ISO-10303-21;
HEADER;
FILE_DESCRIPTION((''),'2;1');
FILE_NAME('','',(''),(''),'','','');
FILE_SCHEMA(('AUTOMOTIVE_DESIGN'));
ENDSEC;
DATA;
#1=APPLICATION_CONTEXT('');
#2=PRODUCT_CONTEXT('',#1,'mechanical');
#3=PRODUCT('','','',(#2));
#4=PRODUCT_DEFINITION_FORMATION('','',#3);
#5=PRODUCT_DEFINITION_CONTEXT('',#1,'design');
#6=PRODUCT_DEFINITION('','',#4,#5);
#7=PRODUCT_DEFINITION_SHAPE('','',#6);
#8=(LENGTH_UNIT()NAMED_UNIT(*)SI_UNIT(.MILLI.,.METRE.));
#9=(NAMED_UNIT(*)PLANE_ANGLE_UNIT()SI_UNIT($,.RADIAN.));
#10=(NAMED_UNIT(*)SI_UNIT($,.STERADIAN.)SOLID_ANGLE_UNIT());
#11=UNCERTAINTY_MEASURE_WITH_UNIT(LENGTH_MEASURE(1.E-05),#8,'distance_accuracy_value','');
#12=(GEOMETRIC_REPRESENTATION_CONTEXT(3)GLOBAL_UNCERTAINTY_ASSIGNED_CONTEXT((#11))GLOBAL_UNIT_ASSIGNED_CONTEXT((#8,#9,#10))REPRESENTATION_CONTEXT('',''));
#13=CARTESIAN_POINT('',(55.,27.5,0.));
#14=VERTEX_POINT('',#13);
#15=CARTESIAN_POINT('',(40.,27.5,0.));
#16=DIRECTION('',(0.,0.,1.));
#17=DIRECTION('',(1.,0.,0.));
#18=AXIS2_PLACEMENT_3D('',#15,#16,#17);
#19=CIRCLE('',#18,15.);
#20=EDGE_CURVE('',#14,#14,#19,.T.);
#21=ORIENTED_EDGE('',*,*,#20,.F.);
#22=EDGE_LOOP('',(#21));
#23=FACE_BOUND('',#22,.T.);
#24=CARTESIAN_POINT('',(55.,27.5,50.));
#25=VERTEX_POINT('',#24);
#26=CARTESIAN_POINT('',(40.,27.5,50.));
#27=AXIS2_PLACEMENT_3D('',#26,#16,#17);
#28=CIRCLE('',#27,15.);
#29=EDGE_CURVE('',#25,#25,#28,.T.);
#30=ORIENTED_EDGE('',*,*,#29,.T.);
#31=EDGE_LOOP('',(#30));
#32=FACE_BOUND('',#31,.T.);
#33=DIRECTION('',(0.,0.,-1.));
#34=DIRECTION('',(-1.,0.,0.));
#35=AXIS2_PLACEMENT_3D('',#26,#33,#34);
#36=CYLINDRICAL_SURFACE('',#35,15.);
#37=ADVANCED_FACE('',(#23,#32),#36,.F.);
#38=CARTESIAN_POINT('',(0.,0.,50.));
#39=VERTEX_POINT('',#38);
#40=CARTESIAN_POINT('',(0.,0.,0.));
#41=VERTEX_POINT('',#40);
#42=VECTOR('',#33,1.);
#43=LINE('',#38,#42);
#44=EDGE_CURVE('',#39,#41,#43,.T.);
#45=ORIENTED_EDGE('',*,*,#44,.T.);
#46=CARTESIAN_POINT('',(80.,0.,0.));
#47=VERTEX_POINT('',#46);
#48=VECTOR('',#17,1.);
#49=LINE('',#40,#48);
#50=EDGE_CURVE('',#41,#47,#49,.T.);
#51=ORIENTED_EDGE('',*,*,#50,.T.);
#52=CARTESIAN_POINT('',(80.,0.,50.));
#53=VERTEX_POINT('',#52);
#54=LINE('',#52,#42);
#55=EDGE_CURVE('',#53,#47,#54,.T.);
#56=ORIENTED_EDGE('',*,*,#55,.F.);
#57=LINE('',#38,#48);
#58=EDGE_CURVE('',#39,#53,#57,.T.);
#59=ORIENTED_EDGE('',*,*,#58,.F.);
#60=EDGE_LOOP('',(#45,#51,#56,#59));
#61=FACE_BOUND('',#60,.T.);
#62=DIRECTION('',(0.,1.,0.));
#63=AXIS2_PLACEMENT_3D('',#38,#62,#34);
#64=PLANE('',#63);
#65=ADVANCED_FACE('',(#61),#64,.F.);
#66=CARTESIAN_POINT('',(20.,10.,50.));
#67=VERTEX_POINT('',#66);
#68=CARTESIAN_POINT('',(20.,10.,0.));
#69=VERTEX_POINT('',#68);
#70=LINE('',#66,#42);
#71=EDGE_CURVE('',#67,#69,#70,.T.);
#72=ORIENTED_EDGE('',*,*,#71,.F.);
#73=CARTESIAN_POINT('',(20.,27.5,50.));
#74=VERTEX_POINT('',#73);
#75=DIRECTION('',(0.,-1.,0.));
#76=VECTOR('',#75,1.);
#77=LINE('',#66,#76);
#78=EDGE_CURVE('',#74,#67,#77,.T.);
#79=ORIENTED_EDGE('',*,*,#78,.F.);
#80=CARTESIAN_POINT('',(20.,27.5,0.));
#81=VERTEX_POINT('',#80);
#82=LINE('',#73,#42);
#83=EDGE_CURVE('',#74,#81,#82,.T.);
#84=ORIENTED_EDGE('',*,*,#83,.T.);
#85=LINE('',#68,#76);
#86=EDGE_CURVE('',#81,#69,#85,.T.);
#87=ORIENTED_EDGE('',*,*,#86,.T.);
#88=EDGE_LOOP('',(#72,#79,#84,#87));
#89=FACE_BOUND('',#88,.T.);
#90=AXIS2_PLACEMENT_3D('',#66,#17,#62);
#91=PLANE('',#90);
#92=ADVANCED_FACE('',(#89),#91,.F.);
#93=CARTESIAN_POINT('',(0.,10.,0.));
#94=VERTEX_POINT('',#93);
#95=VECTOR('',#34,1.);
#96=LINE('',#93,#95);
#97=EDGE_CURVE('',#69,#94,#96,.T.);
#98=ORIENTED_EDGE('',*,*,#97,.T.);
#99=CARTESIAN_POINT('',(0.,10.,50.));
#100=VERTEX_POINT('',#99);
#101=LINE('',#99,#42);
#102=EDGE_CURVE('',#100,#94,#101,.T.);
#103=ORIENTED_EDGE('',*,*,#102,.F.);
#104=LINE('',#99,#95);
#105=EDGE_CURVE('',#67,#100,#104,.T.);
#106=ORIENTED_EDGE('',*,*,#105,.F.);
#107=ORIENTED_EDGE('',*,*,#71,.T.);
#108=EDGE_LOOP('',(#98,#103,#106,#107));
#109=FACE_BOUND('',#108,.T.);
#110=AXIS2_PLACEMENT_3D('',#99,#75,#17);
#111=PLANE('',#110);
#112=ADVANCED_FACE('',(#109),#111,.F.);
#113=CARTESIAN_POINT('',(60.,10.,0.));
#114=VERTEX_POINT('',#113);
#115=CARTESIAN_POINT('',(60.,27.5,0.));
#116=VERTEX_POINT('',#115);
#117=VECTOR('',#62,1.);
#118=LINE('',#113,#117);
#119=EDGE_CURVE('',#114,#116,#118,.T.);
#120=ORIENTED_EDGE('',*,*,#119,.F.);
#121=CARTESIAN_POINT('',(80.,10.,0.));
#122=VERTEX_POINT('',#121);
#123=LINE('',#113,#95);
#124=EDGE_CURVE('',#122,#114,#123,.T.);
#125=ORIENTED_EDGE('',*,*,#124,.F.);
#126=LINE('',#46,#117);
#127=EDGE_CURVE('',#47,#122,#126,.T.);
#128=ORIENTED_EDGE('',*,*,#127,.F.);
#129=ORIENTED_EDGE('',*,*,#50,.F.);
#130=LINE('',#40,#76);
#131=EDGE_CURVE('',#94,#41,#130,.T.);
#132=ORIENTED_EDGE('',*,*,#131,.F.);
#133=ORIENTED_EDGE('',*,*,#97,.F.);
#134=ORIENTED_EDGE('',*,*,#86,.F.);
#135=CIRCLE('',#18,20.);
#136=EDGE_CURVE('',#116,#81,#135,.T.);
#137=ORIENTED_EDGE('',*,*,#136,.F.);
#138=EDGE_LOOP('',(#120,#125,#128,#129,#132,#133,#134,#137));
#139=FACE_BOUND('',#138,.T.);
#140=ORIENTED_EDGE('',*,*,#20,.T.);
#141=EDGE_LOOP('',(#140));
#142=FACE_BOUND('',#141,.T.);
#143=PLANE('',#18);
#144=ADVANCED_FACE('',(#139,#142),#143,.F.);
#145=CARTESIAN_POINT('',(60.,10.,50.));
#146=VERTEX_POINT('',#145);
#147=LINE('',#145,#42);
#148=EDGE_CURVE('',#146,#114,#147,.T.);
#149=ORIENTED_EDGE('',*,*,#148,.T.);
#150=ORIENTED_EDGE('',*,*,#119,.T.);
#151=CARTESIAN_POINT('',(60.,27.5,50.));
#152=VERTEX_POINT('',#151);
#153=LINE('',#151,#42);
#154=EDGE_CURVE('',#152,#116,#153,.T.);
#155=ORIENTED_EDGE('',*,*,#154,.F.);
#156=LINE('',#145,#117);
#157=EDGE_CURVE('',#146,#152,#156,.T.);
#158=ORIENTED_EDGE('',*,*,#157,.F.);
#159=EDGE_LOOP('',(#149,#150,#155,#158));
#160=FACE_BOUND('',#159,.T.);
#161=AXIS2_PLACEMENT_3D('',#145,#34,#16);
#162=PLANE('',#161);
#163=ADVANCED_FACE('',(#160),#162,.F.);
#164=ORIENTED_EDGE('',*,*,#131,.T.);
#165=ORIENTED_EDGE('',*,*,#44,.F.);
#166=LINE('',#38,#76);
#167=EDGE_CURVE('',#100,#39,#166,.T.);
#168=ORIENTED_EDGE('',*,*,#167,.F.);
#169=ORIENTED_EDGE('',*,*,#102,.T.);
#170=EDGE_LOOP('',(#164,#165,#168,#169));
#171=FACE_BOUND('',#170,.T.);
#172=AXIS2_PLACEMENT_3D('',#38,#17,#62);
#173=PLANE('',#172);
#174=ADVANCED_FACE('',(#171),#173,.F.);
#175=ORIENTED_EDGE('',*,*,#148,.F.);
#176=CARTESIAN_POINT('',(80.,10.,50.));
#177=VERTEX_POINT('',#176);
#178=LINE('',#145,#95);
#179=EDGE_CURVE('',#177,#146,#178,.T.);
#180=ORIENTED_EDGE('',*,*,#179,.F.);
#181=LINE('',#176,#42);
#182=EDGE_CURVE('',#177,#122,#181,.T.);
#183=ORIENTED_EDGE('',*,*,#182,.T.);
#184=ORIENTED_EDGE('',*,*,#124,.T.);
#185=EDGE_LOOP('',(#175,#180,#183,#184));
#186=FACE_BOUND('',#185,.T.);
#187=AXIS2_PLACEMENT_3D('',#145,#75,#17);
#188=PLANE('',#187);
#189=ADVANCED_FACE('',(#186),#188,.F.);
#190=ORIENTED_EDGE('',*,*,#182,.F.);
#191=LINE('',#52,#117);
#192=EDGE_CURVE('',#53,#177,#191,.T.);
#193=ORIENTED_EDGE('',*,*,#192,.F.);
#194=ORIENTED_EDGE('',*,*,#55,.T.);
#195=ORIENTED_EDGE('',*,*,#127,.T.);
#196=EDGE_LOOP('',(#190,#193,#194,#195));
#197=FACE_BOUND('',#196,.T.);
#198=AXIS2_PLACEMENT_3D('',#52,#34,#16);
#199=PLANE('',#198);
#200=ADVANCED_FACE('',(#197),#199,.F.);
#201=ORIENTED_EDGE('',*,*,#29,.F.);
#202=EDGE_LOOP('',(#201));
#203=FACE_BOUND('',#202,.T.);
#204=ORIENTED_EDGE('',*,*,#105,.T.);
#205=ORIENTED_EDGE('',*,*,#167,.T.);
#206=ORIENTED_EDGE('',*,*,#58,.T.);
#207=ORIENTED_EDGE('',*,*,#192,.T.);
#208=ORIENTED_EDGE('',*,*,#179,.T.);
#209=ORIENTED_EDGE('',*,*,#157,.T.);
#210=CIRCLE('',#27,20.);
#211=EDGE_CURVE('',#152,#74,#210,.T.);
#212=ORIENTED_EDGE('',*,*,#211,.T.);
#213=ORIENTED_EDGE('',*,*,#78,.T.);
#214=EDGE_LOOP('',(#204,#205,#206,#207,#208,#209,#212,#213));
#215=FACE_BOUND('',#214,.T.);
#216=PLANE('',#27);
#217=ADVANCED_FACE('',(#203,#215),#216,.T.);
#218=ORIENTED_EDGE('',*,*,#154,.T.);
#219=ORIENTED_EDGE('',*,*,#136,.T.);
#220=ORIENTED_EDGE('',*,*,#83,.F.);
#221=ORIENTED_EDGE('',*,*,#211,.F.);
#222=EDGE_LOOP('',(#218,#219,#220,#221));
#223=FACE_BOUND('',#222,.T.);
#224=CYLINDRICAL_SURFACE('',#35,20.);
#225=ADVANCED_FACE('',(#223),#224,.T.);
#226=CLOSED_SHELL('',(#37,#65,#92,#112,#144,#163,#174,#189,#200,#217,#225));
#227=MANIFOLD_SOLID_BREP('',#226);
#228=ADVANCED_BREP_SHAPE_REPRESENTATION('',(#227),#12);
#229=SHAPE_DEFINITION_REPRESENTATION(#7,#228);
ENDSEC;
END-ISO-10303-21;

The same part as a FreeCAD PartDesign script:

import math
import FreeCAD as App
import Part
import Sketcher

V = App.Vector

doc = App.newDocument("Part")
body = doc.addObject("PartDesign::Body", "Body")

# Sketch on XY plane
sketch1 = body.newObject("Sketcher::SketchObject", "Sketch")
sketch1.AttachmentSupport = (doc.getObject("XY_Plane"), [""])
sketch1.MapMode = "FlatFace"
sketch1.addGeometry([
    Part.LineSegment(V(0, 0, 0), V(80, 0, 0)),  # 0
    Part.LineSegment(V(80, 0, 0), V(80, 10, 0)),  # 1
    Part.LineSegment(V(80, 10, 0), V(60, 10, 0)),  # 2
    Part.LineSegment(V(60, 10, 0), V(60, 28, 0)),  # 3
    Part.ArcOfCircle(Part.Circle(V(40, 28, 0), V(0, 0, 1), 20), math.radians(0), math.radians(180)),  # 4
    Part.LineSegment(V(20, 28, 0), V(20, 10, 0)),  # 5
    Part.LineSegment(V(20, 10, 0), V(0, 10, 0)),  # 6
    Part.LineSegment(V(0, 10, 0), V(0, 0, 0)),  # 7
    Part.Circle(V(40, 28, 0), V(0, 0, 1), 15),  # 8
], False)
sketch1.addConstraint([
    Sketcher.Constraint("Coincident", 0, 2, 1, 1),
    Sketcher.Constraint("Coincident", 1, 2, 2, 1),
    Sketcher.Constraint("Coincident", 2, 2, 3, 1),
    Sketcher.Constraint("Tangent", 3, 2, 4, 1),
    Sketcher.Constraint("Tangent", 4, 2, 5, 1),
    Sketcher.Constraint("Coincident", 5, 2, 6, 1),
    Sketcher.Constraint("Coincident", 6, 2, 7, 1),
    Sketcher.Constraint("Coincident", 7, 2, 0, 1),
    Sketcher.Constraint("Horizontal", 0),
    Sketcher.Constraint("Vertical", 1),
    Sketcher.Constraint("Horizontal", 2),
    Sketcher.Constraint("Vertical", 3),
    Sketcher.Constraint("Vertical", 5),
    Sketcher.Constraint("Horizontal", 6),
    Sketcher.Constraint("Vertical", 7),
    Sketcher.Constraint("Coincident", 7, 2, -1, 1),
    Sketcher.Constraint("Coincident", 8, 3, 4, 3),
    Sketcher.Constraint("Horizontal", 2, 2, 5, 2),
    Sketcher.Constraint("Equal", 2, 6),
    Sketcher.Constraint("Diameter", 8, 30.0),
    Sketcher.Constraint("Radius", 4, 20.0),
    Sketcher.Constraint("DistanceX", 0, 1, 0, 2, 80.0),
    Sketcher.Constraint("DistanceY", 1, 1, 1, 2, 10.0),
    Sketcher.Constraint("DistanceY", 3, 1, 3, 2, 17.5),
])
pad1 = body.newObject("PartDesign::Pad", "Pad")
pad1.Profile = sketch1
pad1.Length = 50

doc.recompute()
